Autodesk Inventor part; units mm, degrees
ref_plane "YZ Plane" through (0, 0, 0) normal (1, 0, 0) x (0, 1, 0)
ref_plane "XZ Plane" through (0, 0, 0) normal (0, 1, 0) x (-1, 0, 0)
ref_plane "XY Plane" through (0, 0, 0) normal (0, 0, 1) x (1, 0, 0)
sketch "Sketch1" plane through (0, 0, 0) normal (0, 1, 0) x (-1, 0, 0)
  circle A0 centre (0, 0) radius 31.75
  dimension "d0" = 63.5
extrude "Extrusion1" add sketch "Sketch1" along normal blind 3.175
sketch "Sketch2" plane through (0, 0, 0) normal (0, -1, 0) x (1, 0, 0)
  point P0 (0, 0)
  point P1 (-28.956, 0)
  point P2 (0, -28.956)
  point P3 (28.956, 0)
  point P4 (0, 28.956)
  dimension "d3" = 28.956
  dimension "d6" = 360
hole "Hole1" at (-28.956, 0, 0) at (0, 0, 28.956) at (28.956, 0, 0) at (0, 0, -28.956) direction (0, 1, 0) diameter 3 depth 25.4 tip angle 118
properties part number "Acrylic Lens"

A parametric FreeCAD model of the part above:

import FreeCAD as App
import Part
import Sketcher
from FreeCAD import Vector
Q = App.Units.Quantity

doc = App.newDocument("Part")
body = doc.addObject("PartDesign::Body", "Body")

# Sketch on XZ plane
sketch1 = body.newObject("Sketcher::SketchObject", "Sketch")
sketch1.AttachmentSupport = (doc.getObject("XZ_Plane"), [""])
sketch1.MapMode = "FlatFace"
sketch1.addGeometry(Part.Circle(Vector(0, 0, 0), Vector(0, 0, 1), 32), False)
sketch1.addConstraint([
    Sketcher.Constraint("Coincident", 0, 3, -1, 1),
    Sketcher.Constraint("Diameter", 0, Q("2.5 in")),
])
pad1 = body.newObject("PartDesign::Pad", "Pad")
pad1.Profile = sketch1
pad1.Length = Q("0.125 in")
pad1.Reversed = True

# Sketch on XZ plane
sketch2 = body.newObject("Sketcher::SketchObject", "Sketch001")
sketch2.AttachmentSupport = (doc.getObject("XZ_Plane"), [""])
sketch2.MapMode = "FlatFace"
sketch2.addGeometry([
    Part.Circle(Vector(-29, 0, 0), Vector(0, 0, 1), 1.5),
    Part.Circle(Vector(0, 29, 0), Vector(0, 0, 1), 1.5),
    Part.Circle(Vector(29, 0, 0), Vector(0, 0, 1), 1.5),
    Part.Circle(Vector(0, -29, 0), Vector(0, 0, 1), 1.5),
], False)
sketch2.addConstraint([
    Sketcher.Constraint("Equal", 0, 1),
    Sketcher.Constraint("Equal", 1, 2),
    Sketcher.Constraint("Equal", 2, 3),
    Sketcher.Constraint("Symmetric", 0, 3, 2, 3, -1, 1),
    Sketcher.Constraint("Symmetric", 1, 3, 3, 3, -1, 1),
    Sketcher.Constraint("PointOnObject", 0, 3, -1),
    Sketcher.Constraint("PointOnObject", 1, 3, -2),
    Sketcher.Constraint("Diameter", 0, Q("0.1181 in")),
    Sketcher.Constraint("DistanceX", 0, 3, -1, 1, Q("1.14 in")),
    Sketcher.Constraint("DistanceY", -1, 1, 1, 3, Q("1.14 in")),
])
doc.recompute()
hole = body.newObject("PartDesign::Hole", "Hole")
hole.Profile = sketch2
hole.ThreadType = "None"
hole.Diameter = Q("0.1181102 in")
hole.DepthType = "Dimension"
hole.Depth = Q("1 in")
hole.DrillPoint = "Angled"
hole.DrillPointAngle = 118

doc.recompute()
